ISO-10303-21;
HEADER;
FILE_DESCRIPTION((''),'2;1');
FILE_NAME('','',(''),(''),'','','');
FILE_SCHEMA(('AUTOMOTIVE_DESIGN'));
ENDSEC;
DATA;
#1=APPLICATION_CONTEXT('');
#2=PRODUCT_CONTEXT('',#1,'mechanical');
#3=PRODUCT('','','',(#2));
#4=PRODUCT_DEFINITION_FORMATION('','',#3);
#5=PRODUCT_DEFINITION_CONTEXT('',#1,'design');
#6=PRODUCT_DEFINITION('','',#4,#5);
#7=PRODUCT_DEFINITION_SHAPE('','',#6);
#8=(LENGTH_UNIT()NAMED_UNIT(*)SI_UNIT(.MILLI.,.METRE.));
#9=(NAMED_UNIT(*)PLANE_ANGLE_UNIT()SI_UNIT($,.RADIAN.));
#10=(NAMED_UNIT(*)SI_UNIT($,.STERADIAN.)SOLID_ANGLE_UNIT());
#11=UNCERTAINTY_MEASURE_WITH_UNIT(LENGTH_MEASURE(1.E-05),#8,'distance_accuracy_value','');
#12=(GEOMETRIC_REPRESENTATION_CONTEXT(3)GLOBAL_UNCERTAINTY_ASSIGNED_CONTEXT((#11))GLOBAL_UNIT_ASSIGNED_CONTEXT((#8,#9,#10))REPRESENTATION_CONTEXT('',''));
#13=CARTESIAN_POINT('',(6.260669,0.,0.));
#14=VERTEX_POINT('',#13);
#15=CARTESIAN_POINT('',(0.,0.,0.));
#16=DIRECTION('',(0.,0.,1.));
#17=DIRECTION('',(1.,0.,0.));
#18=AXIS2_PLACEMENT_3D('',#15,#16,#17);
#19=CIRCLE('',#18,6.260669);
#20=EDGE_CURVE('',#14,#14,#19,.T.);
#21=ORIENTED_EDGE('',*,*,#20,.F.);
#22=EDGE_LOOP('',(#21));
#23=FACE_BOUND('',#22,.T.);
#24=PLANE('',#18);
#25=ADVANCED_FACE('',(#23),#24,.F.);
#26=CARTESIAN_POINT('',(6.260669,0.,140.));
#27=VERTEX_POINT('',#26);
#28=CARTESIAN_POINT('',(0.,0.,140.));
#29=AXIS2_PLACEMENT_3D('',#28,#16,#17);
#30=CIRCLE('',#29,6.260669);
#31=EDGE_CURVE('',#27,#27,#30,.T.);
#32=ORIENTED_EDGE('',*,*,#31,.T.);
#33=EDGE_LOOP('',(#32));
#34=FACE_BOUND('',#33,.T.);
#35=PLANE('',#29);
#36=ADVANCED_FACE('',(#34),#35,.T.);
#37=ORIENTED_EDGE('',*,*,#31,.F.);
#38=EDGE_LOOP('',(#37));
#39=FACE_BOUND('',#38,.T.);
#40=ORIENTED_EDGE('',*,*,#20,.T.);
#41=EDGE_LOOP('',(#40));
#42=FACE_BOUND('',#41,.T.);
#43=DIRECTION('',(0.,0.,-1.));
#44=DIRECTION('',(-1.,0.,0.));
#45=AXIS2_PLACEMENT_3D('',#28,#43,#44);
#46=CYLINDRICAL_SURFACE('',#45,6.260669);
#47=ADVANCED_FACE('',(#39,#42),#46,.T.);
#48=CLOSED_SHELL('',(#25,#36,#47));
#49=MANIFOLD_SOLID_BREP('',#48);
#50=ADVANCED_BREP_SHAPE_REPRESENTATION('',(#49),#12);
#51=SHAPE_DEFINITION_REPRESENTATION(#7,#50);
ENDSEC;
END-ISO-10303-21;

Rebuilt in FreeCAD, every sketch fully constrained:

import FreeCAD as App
import Part
import Sketcher
Q = App.Units.Quantity

doc = App.newDocument("Part")
params = doc.addObject("Spreadsheet::Sheet", "Params")
for row, (alias, value) in enumerate([
    ("pad1_length", "140 mm"),
], start=1):
    params.set(f"A{row}", alias)
    params.set(f"B{row}", "=" + value)
    params.setAlias(f"B{row}", alias)

body = doc.addObject("PartDesign::Body", "Body")

# Sketch on XY plane
sketch1 = doc.addObject("Sketcher::SketchObject", "Sketch")
body.addObject(sketch1)
sketch1.AttachmentSupport = (doc.XY_Plane, [""])
sketch1.MapMode = "FlatFace"
sketch1.addGeometry(Part.Circle(App.Vector(0, 0, 0), App.Vector(0, 0, 1), 6), False)
sketch1.addConstraint([
    Sketcher.Constraint("Coincident", 0, 3, -1, 1),
    Sketcher.Constraint("Diameter", 0, Q("12.521337 mm")),
])
pad1 = doc.addObject("PartDesign::Pad", "Pad")
body.addObject(pad1)
pad1.Profile = sketch1
pad1.setExpression("Length", "Params.pad1_length")

doc.recompute()
